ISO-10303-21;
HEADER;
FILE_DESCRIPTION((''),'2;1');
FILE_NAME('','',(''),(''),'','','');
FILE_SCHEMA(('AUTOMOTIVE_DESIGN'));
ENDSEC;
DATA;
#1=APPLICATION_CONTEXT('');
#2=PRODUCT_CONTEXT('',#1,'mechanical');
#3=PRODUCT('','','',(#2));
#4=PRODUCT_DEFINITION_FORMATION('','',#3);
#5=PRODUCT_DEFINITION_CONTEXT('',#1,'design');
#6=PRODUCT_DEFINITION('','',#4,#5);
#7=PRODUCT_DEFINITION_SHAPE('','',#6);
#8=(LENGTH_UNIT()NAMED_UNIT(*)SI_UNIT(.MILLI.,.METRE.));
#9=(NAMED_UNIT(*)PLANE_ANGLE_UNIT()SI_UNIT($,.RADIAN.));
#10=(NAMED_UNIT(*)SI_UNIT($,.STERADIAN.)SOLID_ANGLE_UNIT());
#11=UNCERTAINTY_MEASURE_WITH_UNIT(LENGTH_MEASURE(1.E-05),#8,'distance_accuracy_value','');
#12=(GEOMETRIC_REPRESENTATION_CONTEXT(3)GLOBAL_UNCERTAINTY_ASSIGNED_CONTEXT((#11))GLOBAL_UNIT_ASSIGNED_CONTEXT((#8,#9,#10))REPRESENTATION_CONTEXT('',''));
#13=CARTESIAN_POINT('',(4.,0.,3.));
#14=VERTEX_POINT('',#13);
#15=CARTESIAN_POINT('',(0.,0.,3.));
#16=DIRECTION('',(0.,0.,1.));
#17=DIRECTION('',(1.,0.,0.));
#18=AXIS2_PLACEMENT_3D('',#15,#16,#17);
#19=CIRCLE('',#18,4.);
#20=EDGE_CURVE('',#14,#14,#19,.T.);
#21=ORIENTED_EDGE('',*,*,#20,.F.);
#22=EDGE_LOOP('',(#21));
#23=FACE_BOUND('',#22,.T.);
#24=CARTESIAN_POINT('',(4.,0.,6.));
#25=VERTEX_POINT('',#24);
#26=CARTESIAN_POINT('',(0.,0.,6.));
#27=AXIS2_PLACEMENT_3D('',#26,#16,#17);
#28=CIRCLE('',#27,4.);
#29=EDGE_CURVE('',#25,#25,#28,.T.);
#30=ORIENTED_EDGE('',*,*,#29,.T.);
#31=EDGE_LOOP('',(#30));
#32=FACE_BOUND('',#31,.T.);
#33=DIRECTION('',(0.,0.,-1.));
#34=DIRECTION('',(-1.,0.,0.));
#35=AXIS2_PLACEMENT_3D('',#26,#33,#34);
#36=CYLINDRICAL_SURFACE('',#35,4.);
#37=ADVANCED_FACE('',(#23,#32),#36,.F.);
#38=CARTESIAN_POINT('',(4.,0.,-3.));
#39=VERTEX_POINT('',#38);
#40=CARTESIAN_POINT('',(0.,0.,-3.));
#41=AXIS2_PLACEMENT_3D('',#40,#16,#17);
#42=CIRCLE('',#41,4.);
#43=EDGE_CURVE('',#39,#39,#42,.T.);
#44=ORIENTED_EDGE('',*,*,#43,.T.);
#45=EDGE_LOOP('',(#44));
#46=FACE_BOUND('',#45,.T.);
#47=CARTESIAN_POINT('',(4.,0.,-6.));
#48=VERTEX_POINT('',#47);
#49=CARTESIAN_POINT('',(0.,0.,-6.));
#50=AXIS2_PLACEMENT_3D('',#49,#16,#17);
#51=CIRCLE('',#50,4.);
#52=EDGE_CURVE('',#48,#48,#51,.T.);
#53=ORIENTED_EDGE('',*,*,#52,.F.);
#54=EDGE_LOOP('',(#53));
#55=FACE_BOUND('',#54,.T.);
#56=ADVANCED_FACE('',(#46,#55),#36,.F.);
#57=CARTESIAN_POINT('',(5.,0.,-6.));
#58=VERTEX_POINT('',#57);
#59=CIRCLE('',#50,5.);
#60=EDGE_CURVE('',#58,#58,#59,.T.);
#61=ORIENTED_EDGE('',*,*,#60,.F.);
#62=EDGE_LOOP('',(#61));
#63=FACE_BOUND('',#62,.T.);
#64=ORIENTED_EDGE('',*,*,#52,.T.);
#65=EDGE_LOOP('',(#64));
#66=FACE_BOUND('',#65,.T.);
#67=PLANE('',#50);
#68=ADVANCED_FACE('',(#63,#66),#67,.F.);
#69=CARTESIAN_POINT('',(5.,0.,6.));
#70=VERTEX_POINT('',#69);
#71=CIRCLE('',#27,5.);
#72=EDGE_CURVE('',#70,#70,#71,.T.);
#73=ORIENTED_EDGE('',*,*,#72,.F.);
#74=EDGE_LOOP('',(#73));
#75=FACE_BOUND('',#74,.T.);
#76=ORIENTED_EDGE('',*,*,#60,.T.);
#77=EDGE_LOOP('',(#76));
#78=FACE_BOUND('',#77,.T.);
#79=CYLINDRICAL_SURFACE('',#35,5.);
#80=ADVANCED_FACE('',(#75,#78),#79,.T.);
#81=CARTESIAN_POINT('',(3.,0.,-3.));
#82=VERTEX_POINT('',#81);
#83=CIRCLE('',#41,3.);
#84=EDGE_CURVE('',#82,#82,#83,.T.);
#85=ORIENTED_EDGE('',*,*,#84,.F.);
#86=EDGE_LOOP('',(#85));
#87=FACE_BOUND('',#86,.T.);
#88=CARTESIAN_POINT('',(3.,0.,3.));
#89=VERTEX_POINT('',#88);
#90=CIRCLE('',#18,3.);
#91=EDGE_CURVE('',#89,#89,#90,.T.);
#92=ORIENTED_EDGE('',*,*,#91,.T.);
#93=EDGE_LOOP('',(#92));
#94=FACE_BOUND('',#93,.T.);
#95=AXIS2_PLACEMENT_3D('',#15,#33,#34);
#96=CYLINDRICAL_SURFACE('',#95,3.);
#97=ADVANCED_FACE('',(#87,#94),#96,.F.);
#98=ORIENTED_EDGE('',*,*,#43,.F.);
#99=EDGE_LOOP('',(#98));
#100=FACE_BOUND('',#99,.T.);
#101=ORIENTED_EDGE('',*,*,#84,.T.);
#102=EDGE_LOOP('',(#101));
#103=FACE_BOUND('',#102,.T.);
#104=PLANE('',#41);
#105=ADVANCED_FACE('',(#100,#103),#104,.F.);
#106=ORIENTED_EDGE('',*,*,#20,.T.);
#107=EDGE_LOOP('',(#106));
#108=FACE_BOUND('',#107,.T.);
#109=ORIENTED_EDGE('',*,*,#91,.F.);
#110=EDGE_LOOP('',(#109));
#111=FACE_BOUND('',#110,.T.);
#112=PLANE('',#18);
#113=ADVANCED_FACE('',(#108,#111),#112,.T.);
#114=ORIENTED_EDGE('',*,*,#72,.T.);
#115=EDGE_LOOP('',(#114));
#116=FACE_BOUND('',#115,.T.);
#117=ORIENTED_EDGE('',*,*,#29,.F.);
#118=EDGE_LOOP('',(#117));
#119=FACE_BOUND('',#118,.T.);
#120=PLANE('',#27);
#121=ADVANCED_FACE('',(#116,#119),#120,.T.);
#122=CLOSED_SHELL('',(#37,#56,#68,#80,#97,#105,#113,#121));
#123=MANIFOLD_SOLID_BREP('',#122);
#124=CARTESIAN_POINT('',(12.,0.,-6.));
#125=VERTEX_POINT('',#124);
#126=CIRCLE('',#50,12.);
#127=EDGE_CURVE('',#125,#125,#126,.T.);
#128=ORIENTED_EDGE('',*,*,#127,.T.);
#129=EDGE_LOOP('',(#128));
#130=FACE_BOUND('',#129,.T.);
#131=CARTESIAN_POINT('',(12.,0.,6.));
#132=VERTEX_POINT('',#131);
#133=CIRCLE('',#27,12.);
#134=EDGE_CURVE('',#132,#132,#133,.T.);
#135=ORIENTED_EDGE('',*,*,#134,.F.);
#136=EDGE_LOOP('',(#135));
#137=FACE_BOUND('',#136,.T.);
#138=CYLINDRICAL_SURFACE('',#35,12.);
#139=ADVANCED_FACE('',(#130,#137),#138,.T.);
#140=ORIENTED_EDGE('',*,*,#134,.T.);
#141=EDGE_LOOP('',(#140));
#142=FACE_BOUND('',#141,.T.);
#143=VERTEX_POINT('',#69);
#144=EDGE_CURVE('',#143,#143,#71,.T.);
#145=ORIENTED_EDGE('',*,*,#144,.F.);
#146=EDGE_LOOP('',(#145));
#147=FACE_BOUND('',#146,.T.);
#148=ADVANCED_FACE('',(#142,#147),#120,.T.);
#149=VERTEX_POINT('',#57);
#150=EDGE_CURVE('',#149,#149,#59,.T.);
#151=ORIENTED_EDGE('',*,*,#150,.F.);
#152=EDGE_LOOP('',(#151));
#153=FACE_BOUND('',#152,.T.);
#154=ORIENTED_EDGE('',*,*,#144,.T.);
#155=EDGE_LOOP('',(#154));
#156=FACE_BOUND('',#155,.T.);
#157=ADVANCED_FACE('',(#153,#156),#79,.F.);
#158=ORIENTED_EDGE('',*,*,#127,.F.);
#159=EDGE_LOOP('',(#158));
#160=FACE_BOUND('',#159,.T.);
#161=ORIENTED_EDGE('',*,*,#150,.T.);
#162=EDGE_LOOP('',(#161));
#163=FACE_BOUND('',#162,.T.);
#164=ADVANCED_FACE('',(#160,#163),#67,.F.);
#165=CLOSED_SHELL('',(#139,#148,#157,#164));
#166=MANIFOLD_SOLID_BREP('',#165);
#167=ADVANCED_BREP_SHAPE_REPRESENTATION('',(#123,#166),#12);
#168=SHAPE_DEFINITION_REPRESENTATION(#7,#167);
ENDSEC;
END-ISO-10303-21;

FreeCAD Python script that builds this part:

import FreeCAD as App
import Part
import Sketcher
Q = App.Units.Quantity

doc = App.newDocument("Part")
body = doc.addObject("PartDesign::Body", "Body")

# Sketch on XY plane
sketch1 = body.newObject("Sketcher::SketchObject", "Sketch")
sketch1.AttachmentSupport = (doc.getObject("XY_Plane"), [""])
sketch1.MapMode = "FlatFace"
sketch1.addGeometry(Part.Circle(App.Vector(0, 0, 0), App.Vector(0, 0, 1), 12), False)
sketch1.addGeometry(Part.Circle(App.Vector(0, 0, 0), App.Vector(0, 0, 1), 5), False)
sketch1.addConstraint(Sketcher.Constraint("Coincident", 0, 3, -1, 1))
sketch1.addConstraint(Sketcher.Constraint("Coincident", 1, 3, -1, 1))
sketch1.addConstraint(Sketcher.Constraint("Diameter", 0, Q("24 mm")))
sketch1.addConstraint(Sketcher.Constraint("Diameter", 1, Q("10 mm")))
pad1 = body.newObject("PartDesign::Pad", "Pad")
pad1.Profile = sketch1
pad1.Length = 12
pad1.Midplane = True
body2 = doc.addObject("PartDesign::Body", "Body001")

# Sketch on XY plane
sketch2 = body2.newObject("Sketcher::SketchObject", "Sketch001")
sketch2.AttachmentSupport = (doc.getObject("XY_Plane001"), [""])
sketch2.MapMode = "FlatFace"
sketch2.addGeometry(Part.Circle(App.Vector(0, 0, 0), App.Vector(0, 0, 1), 5), False)
sketch2.addGeometry(Part.Circle(App.Vector(0, 0, 0), App.Vector(0, 0, 1), 4), False)
sketch2.addConstraint(Sketcher.Constraint("Coincident", 0, 3, -1, 1))
sketch2.addConstraint(Sketcher.Constraint("Coincident", 1, 3, -1, 1))
sketch2.addConstraint(Sketcher.Constraint("Diameter", 0, Q("10 mm")))
sketch2.addConstraint(Sketcher.Constraint("Diameter", 1, Q("8 mm")))
pad2 = body2.newObject("PartDesign::Pad", "Pad001")
pad2.Profile = sketch2
pad2.Length = 12
pad2.Midplane = True

# Sketch on XY plane
sketch3 = body2.newObject("Sketcher::SketchObject", "Sketch002")
sketch3.AttachmentSupport = (doc.getObject("XY_Plane001"), [""])
sketch3.MapMode = "FlatFace"
sketch3.addGeometry(Part.Circle(App.Vector(0, 0, 0), App.Vector(0, 0, 1), 4), False)
sketch3.addGeometry(Part.Circle(App.Vector(0, 0, 0), App.Vector(0, 0, 1), 3), False)
sketch3.addConstraint(Sketcher.Constraint("Coincident", 0, 3, -1, 1))
sketch3.addConstraint(Sketcher.Constraint("Coincident", 1, 3, -1, 1))
sketch3.addConstraint(Sketcher.Constraint("Diameter", 0, Q("8 mm")))
sketch3.addConstraint(Sketcher.Constraint("Diameter", 1, Q("6 mm")))
pad3 = body2.newObject("PartDesign::Pad", "Pad002")
pad3.Profile = sketch3
pad3.Length = 6
pad3.Midplane = True

doc.recompute()
